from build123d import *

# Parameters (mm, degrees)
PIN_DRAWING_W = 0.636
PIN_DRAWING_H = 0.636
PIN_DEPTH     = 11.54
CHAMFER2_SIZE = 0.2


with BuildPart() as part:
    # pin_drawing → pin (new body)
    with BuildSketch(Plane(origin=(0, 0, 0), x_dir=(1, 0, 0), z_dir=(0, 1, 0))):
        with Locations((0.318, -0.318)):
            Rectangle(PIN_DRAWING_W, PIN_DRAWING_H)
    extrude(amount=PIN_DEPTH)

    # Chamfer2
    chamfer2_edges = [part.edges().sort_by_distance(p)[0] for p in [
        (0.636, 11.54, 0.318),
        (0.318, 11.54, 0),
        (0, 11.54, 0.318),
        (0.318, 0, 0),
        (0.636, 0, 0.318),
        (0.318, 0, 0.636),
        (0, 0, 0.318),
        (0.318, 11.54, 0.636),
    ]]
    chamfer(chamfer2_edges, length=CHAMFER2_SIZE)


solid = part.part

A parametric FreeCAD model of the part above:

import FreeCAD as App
import Part
import Sketcher

V = App.Vector
Q = App.Units.Quantity


def edges_at(feature, points):
    """Names of the edges that pass closest to the given points."""
    edges = feature.Shape.Edges
    near = lambda p: min(range(len(edges)), key=lambda i: edges[i].distToShape(Part.Vertex(*p))[0])
    return sorted({f"Edge{near(p) + 1}" for p in points})

doc = App.newDocument("Part")
body = doc.addObject("PartDesign::Body", "Body")

sketch1 = body.newObject("Sketcher::SketchObject", "Sketch")
sketch1.AttachmentSupport = (doc.getObject("XZ_Plane"), [""])
sketch1.MapMode = "FlatFace"
sketch1.addGeometry([
    Part.LineSegment(V(0, 0, 0), V(0, 0.6, 0)),
    Part.LineSegment(V(0, 0.6, 0), V(0.6, 0.6, 0)),
    Part.LineSegment(V(0.6, 0.6, 0), V(0.6, 0, 0)),
    Part.LineSegment(V(0.6, 0, 0), V(0, 0, 0)),
], False)
sketch1.addConstraint([
    Sketcher.Constraint("Coincident", 0, 2, 1, 1),
    Sketcher.Constraint("Coincident", 1, 2, 2, 1),
    Sketcher.Constraint("Coincident", 2, 2, 3, 1),
    Sketcher.Constraint("Coincident", 3, 2, 0, 1),
    Sketcher.Constraint("Vertical", 0),
    Sketcher.Constraint("Horizontal", 1),
    Sketcher.Constraint("Vertical", 2),
    Sketcher.Constraint("Horizontal", 3),
    Sketcher.Constraint("Coincident", 3, 2, -1, 1),
    Sketcher.Constraint("Equal", 3, 0),
    Sketcher.Constraint("DistanceX", 1, 1, 1, 2, Q("0.636 mm")),
])
pad1 = body.newObject("PartDesign::Pad", "Pad")
pad1.Profile = sketch1
pad1.Length = 11.54
pad1.Reversed = True
doc.recompute()

chamfer = body.newObject("PartDesign::Chamfer", "Chamfer")
chamfer.Base = (pad1, edges_at(pad1, [
    (0.636, 11.54, 0.318),
    (0.318, 11.54, 0),
    (0, 11.54, 0.318),
    (0.318, 0, 0),
    (0.636, 0, 0.318),
    (0.318, 0, 0.636),
    (0, 0, 0.318),
    (0.318, 11.54, 0.636),
]))
chamfer.Size = 0.2

doc.recompute()
